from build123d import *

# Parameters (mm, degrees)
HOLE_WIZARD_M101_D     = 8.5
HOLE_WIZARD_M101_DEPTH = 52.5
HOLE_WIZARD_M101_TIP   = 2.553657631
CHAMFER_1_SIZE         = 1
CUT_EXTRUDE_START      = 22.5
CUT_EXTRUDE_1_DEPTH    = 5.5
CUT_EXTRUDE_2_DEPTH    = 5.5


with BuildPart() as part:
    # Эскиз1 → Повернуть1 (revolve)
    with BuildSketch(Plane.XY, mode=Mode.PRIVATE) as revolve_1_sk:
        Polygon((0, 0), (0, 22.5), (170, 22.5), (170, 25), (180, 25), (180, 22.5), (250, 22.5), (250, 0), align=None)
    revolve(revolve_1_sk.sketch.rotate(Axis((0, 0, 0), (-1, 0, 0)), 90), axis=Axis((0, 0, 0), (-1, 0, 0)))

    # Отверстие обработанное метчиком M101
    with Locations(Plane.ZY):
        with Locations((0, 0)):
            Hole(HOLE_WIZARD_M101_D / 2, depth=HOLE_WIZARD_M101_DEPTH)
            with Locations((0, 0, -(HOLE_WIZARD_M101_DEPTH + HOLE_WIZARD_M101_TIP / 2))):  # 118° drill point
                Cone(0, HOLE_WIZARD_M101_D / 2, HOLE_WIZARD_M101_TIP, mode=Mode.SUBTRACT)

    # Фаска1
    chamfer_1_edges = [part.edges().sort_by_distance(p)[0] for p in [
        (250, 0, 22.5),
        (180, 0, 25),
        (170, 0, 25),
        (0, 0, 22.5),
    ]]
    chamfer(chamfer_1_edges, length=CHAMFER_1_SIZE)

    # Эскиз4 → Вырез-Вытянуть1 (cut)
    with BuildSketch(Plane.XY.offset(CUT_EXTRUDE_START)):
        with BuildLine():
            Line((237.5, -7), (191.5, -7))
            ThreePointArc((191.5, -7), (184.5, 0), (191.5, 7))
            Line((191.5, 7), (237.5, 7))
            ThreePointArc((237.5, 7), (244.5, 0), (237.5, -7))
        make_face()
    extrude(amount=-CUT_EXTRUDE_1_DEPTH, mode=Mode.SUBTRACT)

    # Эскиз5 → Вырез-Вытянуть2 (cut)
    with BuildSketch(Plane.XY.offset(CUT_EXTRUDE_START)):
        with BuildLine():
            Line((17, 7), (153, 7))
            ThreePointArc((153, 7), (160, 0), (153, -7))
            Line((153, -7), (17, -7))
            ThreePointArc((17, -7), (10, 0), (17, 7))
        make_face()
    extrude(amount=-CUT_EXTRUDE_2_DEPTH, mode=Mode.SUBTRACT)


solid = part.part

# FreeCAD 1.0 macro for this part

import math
import FreeCAD as App
import Part
import Sketcher
Q = App.Units.Quantity


def edges_at(feature, points):
    """Names of the edges that pass closest to the given points."""
    edges = feature.Shape.Edges
    near = lambda p: min(range(len(edges)), key=lambda i: edges[i].distToShape(Part.Vertex(*p))[0])
    return sorted({f"Edge{near(p) + 1}" for p in points})


def add_polygon(sketch, points):
    """Adds a closed chain of lines whose ends are joined by coincident constraints."""
    first, n = sketch.GeometryCount, len(points)
    for a, b in zip(points, points[1:] + points[:1]):
        sketch.addGeometry(Part.LineSegment(App.Vector(*a, 0), App.Vector(*b, 0)), False)
    for i in range(n):
        sketch.addConstraint(Sketcher.Constraint("Coincident", first + i, 2, first + (i + 1) % n, 1))

doc = App.newDocument("Part")
body = doc.addObject("PartDesign::Body", "Body")

# Sketch on XY plane
sketch1 = doc.addObject("Sketcher::SketchObject", "Sketch")
body.addObject(sketch1)
sketch1.AttachmentSupport = (doc.XY_Plane, [""])
sketch1.MapMode = "FlatFace"
add_polygon(sketch1, [(0, 22.5), (0, 0), (250, 0), (250, 22.5), (180, 22.5), (180, 25), (170, 25), (170, 22.5)])  # lines 0-7
sketch1.addConstraint([
    Sketcher.Constraint("Vertical", 0),
    Sketcher.Constraint("Horizontal", 1),
    Sketcher.Constraint("Vertical", 2),
    Sketcher.Constraint("Horizontal", 3),
    Sketcher.Constraint("Vertical", 4),
    Sketcher.Constraint("Horizontal", 5),
    Sketcher.Constraint("Vertical", 6),
    Sketcher.Constraint("Horizontal", 7),
    Sketcher.Constraint("Coincident", 0, 2, -1, 1),
    Sketcher.Constraint("Horizontal", 3, 2, 6, 2),
    Sketcher.Constraint("DistanceX", 1, 1, 1, 2, Q("250 mm")),
    Sketcher.Constraint("DistanceX", 3, 2, 3, 1, Q("70 mm")),
    Sketcher.Constraint("DistanceX", 5, 2, 5, 1, Q("10 mm")),
    Sketcher.Constraint("DistanceY", 0, 2, 0, 1, Q("22.5 mm")),
    Sketcher.Constraint("DistanceY", 4, 1, 4, 2, Q("2.5 mm")),
])
revolution = doc.addObject("PartDesign::Revolution", "Revolution")
body.addObject(revolution)
revolution.Profile = sketch1
revolution.ReferenceAxis = (sketch1, ["H_Axis"])
revolution.Angle = 360

# Sketch on YZ plane
sketch2 = doc.addObject("Sketcher::SketchObject", "Sketch001")
body.addObject(sketch2)
sketch2.AttachmentSupport = (doc.YZ_Plane, [""])
sketch2.MapMode = "FlatFace"
sketch2.addGeometry(Part.Circle(App.Vector(0, 0, 0), App.Vector(0, 0, 1), 4.2), False)
sketch2.addConstraint([
    Sketcher.Constraint("Coincident", 0, 3, -1, 1),
    Sketcher.Constraint("Diameter", 0, Q("8.5 mm")),
])
doc.recompute()
hole = doc.addObject("PartDesign::Hole", "Hole")
body.addObject(hole)
hole.Profile = sketch2
hole.ThreadType = "None"
hole.Diameter = 8.5
hole.DepthType = "Dimension"
hole.Depth = 52.5
hole.DrillPoint = "Angled"
hole.DrillPointAngle = 118
hole.Reversed = True
doc.recompute()

chamfer = doc.addObject("PartDesign::Chamfer", "Chamfer")
body.addObject(chamfer)
chamfer.Base = (hole, edges_at(hole, [
    (250, 0, 22.5),
    (180, 0, 25),
    (170, 0, 25),
    (0, 0, 22.5),
]))
chamfer.Size = 1

# Sketch on XY plane
sketch3 = doc.addObject("Sketcher::SketchObject", "Sketch002")
body.addObject(sketch3)
sketch3.AttachmentSupport = (doc.XY_Plane, [""])
sketch3.MapMode = "FlatFace"
sketch3.AttachmentOffset = App.Placement(App.Vector(0, 0, 22.5), App.Rotation())
sketch3.addGeometry([
    Part.LineSegment(App.Vector(192, -7, 0), App.Vector(238, -7, 0)),
    Part.ArcOfCircle(Part.Circle(App.Vector(238, 0, 0), App.Vector(0, 0, 1), 7), math.radians(-90), math.radians(90)),
    Part.LineSegment(App.Vector(238, 7, 0), App.Vector(192, 7, 0)),
    Part.ArcOfCircle(Part.Circle(App.Vector(192, 0, 0), App.Vector(0, 0, 1), 7), math.radians(90), math.radians(270)),
], False)
sketch3.addConstraint([
    Sketcher.Constraint("Tangent", 0, 2, 1, 1),
    Sketcher.Constraint("Tangent", 1, 2, 2, 1),
    Sketcher.Constraint("Tangent", 2, 2, 3, 1),
    Sketcher.Constraint("Tangent", 3, 2, 0, 1),
    Sketcher.Constraint("Horizontal", 0),
    Sketcher.Constraint("Horizontal", 2),
    Sketcher.Constraint("PointOnObject", 1, 3, -1),
    Sketcher.Constraint("Radius", 1, Q("7 mm")),
    Sketcher.Constraint("DistanceX", 0, 1, 0, 2, Q("46 mm")),
    Sketcher.Constraint("DistanceX", -1, 1, 1, 3, Q("237.5 mm")),
])
pocket1 = doc.addObject("PartDesign::Pocket", "Pocket")
body.addObject(pocket1)
pocket1.Profile = sketch3
pocket1.Length = 5.5

# Sketch on XY plane
sketch4 = doc.addObject("Sketcher::SketchObject", "Sketch003")
body.addObject(sketch4)
sketch4.AttachmentSupport = (doc.XY_Plane, [""])
sketch4.MapMode = "FlatFace"
sketch4.AttachmentOffset = App.Placement(App.Vector(0, 0, 22.5), App.Rotation())
sketch4.addGeometry([
    Part.LineSegment(App.Vector(153, 7, 0), App.Vector(17, 7, 0)),
    Part.ArcOfCircle(Part.Circle(App.Vector(17, 0, 0), App.Vector(0, 0, 1), 7), math.radians(90), math.radians(270)),
    Part.LineSegment(App.Vector(17, -7, 0), App.Vector(153, -7, 0)),
    Part.ArcOfCircle(Part.Circle(App.Vector(153, 0, 0), App.Vector(0, 0, 1), 7), math.radians(-90), math.radians(90)),
], False)
sketch4.addConstraint([
    Sketcher.Constraint("Tangent", 0, 2, 1, 1),
    Sketcher.Constraint("Tangent", 1, 2, 2, 1),
    Sketcher.Constraint("Tangent", 2, 2, 3, 1),
    Sketcher.Constraint("Tangent", 3, 2, 0, 1),
    Sketcher.Constraint("Horizontal", 0),
    Sketcher.Constraint("Horizontal", 2),
    Sketcher.Constraint("PointOnObject", 1, 3, -1),
    Sketcher.Constraint("Radius", 1, Q("7 mm")),
    Sketcher.Constraint("DistanceX", 0, 2, 0, 1, Q("136 mm")),
    Sketcher.Constraint("DistanceX", -1, 1, 1, 3, Q("17 mm")),
])
pocket2 = doc.addObject("PartDesign::Pocket", "Pocket001")
body.addObject(pocket2)
pocket2.Profile = sketch4
pocket2.Length = 5.5

doc.recompute()
